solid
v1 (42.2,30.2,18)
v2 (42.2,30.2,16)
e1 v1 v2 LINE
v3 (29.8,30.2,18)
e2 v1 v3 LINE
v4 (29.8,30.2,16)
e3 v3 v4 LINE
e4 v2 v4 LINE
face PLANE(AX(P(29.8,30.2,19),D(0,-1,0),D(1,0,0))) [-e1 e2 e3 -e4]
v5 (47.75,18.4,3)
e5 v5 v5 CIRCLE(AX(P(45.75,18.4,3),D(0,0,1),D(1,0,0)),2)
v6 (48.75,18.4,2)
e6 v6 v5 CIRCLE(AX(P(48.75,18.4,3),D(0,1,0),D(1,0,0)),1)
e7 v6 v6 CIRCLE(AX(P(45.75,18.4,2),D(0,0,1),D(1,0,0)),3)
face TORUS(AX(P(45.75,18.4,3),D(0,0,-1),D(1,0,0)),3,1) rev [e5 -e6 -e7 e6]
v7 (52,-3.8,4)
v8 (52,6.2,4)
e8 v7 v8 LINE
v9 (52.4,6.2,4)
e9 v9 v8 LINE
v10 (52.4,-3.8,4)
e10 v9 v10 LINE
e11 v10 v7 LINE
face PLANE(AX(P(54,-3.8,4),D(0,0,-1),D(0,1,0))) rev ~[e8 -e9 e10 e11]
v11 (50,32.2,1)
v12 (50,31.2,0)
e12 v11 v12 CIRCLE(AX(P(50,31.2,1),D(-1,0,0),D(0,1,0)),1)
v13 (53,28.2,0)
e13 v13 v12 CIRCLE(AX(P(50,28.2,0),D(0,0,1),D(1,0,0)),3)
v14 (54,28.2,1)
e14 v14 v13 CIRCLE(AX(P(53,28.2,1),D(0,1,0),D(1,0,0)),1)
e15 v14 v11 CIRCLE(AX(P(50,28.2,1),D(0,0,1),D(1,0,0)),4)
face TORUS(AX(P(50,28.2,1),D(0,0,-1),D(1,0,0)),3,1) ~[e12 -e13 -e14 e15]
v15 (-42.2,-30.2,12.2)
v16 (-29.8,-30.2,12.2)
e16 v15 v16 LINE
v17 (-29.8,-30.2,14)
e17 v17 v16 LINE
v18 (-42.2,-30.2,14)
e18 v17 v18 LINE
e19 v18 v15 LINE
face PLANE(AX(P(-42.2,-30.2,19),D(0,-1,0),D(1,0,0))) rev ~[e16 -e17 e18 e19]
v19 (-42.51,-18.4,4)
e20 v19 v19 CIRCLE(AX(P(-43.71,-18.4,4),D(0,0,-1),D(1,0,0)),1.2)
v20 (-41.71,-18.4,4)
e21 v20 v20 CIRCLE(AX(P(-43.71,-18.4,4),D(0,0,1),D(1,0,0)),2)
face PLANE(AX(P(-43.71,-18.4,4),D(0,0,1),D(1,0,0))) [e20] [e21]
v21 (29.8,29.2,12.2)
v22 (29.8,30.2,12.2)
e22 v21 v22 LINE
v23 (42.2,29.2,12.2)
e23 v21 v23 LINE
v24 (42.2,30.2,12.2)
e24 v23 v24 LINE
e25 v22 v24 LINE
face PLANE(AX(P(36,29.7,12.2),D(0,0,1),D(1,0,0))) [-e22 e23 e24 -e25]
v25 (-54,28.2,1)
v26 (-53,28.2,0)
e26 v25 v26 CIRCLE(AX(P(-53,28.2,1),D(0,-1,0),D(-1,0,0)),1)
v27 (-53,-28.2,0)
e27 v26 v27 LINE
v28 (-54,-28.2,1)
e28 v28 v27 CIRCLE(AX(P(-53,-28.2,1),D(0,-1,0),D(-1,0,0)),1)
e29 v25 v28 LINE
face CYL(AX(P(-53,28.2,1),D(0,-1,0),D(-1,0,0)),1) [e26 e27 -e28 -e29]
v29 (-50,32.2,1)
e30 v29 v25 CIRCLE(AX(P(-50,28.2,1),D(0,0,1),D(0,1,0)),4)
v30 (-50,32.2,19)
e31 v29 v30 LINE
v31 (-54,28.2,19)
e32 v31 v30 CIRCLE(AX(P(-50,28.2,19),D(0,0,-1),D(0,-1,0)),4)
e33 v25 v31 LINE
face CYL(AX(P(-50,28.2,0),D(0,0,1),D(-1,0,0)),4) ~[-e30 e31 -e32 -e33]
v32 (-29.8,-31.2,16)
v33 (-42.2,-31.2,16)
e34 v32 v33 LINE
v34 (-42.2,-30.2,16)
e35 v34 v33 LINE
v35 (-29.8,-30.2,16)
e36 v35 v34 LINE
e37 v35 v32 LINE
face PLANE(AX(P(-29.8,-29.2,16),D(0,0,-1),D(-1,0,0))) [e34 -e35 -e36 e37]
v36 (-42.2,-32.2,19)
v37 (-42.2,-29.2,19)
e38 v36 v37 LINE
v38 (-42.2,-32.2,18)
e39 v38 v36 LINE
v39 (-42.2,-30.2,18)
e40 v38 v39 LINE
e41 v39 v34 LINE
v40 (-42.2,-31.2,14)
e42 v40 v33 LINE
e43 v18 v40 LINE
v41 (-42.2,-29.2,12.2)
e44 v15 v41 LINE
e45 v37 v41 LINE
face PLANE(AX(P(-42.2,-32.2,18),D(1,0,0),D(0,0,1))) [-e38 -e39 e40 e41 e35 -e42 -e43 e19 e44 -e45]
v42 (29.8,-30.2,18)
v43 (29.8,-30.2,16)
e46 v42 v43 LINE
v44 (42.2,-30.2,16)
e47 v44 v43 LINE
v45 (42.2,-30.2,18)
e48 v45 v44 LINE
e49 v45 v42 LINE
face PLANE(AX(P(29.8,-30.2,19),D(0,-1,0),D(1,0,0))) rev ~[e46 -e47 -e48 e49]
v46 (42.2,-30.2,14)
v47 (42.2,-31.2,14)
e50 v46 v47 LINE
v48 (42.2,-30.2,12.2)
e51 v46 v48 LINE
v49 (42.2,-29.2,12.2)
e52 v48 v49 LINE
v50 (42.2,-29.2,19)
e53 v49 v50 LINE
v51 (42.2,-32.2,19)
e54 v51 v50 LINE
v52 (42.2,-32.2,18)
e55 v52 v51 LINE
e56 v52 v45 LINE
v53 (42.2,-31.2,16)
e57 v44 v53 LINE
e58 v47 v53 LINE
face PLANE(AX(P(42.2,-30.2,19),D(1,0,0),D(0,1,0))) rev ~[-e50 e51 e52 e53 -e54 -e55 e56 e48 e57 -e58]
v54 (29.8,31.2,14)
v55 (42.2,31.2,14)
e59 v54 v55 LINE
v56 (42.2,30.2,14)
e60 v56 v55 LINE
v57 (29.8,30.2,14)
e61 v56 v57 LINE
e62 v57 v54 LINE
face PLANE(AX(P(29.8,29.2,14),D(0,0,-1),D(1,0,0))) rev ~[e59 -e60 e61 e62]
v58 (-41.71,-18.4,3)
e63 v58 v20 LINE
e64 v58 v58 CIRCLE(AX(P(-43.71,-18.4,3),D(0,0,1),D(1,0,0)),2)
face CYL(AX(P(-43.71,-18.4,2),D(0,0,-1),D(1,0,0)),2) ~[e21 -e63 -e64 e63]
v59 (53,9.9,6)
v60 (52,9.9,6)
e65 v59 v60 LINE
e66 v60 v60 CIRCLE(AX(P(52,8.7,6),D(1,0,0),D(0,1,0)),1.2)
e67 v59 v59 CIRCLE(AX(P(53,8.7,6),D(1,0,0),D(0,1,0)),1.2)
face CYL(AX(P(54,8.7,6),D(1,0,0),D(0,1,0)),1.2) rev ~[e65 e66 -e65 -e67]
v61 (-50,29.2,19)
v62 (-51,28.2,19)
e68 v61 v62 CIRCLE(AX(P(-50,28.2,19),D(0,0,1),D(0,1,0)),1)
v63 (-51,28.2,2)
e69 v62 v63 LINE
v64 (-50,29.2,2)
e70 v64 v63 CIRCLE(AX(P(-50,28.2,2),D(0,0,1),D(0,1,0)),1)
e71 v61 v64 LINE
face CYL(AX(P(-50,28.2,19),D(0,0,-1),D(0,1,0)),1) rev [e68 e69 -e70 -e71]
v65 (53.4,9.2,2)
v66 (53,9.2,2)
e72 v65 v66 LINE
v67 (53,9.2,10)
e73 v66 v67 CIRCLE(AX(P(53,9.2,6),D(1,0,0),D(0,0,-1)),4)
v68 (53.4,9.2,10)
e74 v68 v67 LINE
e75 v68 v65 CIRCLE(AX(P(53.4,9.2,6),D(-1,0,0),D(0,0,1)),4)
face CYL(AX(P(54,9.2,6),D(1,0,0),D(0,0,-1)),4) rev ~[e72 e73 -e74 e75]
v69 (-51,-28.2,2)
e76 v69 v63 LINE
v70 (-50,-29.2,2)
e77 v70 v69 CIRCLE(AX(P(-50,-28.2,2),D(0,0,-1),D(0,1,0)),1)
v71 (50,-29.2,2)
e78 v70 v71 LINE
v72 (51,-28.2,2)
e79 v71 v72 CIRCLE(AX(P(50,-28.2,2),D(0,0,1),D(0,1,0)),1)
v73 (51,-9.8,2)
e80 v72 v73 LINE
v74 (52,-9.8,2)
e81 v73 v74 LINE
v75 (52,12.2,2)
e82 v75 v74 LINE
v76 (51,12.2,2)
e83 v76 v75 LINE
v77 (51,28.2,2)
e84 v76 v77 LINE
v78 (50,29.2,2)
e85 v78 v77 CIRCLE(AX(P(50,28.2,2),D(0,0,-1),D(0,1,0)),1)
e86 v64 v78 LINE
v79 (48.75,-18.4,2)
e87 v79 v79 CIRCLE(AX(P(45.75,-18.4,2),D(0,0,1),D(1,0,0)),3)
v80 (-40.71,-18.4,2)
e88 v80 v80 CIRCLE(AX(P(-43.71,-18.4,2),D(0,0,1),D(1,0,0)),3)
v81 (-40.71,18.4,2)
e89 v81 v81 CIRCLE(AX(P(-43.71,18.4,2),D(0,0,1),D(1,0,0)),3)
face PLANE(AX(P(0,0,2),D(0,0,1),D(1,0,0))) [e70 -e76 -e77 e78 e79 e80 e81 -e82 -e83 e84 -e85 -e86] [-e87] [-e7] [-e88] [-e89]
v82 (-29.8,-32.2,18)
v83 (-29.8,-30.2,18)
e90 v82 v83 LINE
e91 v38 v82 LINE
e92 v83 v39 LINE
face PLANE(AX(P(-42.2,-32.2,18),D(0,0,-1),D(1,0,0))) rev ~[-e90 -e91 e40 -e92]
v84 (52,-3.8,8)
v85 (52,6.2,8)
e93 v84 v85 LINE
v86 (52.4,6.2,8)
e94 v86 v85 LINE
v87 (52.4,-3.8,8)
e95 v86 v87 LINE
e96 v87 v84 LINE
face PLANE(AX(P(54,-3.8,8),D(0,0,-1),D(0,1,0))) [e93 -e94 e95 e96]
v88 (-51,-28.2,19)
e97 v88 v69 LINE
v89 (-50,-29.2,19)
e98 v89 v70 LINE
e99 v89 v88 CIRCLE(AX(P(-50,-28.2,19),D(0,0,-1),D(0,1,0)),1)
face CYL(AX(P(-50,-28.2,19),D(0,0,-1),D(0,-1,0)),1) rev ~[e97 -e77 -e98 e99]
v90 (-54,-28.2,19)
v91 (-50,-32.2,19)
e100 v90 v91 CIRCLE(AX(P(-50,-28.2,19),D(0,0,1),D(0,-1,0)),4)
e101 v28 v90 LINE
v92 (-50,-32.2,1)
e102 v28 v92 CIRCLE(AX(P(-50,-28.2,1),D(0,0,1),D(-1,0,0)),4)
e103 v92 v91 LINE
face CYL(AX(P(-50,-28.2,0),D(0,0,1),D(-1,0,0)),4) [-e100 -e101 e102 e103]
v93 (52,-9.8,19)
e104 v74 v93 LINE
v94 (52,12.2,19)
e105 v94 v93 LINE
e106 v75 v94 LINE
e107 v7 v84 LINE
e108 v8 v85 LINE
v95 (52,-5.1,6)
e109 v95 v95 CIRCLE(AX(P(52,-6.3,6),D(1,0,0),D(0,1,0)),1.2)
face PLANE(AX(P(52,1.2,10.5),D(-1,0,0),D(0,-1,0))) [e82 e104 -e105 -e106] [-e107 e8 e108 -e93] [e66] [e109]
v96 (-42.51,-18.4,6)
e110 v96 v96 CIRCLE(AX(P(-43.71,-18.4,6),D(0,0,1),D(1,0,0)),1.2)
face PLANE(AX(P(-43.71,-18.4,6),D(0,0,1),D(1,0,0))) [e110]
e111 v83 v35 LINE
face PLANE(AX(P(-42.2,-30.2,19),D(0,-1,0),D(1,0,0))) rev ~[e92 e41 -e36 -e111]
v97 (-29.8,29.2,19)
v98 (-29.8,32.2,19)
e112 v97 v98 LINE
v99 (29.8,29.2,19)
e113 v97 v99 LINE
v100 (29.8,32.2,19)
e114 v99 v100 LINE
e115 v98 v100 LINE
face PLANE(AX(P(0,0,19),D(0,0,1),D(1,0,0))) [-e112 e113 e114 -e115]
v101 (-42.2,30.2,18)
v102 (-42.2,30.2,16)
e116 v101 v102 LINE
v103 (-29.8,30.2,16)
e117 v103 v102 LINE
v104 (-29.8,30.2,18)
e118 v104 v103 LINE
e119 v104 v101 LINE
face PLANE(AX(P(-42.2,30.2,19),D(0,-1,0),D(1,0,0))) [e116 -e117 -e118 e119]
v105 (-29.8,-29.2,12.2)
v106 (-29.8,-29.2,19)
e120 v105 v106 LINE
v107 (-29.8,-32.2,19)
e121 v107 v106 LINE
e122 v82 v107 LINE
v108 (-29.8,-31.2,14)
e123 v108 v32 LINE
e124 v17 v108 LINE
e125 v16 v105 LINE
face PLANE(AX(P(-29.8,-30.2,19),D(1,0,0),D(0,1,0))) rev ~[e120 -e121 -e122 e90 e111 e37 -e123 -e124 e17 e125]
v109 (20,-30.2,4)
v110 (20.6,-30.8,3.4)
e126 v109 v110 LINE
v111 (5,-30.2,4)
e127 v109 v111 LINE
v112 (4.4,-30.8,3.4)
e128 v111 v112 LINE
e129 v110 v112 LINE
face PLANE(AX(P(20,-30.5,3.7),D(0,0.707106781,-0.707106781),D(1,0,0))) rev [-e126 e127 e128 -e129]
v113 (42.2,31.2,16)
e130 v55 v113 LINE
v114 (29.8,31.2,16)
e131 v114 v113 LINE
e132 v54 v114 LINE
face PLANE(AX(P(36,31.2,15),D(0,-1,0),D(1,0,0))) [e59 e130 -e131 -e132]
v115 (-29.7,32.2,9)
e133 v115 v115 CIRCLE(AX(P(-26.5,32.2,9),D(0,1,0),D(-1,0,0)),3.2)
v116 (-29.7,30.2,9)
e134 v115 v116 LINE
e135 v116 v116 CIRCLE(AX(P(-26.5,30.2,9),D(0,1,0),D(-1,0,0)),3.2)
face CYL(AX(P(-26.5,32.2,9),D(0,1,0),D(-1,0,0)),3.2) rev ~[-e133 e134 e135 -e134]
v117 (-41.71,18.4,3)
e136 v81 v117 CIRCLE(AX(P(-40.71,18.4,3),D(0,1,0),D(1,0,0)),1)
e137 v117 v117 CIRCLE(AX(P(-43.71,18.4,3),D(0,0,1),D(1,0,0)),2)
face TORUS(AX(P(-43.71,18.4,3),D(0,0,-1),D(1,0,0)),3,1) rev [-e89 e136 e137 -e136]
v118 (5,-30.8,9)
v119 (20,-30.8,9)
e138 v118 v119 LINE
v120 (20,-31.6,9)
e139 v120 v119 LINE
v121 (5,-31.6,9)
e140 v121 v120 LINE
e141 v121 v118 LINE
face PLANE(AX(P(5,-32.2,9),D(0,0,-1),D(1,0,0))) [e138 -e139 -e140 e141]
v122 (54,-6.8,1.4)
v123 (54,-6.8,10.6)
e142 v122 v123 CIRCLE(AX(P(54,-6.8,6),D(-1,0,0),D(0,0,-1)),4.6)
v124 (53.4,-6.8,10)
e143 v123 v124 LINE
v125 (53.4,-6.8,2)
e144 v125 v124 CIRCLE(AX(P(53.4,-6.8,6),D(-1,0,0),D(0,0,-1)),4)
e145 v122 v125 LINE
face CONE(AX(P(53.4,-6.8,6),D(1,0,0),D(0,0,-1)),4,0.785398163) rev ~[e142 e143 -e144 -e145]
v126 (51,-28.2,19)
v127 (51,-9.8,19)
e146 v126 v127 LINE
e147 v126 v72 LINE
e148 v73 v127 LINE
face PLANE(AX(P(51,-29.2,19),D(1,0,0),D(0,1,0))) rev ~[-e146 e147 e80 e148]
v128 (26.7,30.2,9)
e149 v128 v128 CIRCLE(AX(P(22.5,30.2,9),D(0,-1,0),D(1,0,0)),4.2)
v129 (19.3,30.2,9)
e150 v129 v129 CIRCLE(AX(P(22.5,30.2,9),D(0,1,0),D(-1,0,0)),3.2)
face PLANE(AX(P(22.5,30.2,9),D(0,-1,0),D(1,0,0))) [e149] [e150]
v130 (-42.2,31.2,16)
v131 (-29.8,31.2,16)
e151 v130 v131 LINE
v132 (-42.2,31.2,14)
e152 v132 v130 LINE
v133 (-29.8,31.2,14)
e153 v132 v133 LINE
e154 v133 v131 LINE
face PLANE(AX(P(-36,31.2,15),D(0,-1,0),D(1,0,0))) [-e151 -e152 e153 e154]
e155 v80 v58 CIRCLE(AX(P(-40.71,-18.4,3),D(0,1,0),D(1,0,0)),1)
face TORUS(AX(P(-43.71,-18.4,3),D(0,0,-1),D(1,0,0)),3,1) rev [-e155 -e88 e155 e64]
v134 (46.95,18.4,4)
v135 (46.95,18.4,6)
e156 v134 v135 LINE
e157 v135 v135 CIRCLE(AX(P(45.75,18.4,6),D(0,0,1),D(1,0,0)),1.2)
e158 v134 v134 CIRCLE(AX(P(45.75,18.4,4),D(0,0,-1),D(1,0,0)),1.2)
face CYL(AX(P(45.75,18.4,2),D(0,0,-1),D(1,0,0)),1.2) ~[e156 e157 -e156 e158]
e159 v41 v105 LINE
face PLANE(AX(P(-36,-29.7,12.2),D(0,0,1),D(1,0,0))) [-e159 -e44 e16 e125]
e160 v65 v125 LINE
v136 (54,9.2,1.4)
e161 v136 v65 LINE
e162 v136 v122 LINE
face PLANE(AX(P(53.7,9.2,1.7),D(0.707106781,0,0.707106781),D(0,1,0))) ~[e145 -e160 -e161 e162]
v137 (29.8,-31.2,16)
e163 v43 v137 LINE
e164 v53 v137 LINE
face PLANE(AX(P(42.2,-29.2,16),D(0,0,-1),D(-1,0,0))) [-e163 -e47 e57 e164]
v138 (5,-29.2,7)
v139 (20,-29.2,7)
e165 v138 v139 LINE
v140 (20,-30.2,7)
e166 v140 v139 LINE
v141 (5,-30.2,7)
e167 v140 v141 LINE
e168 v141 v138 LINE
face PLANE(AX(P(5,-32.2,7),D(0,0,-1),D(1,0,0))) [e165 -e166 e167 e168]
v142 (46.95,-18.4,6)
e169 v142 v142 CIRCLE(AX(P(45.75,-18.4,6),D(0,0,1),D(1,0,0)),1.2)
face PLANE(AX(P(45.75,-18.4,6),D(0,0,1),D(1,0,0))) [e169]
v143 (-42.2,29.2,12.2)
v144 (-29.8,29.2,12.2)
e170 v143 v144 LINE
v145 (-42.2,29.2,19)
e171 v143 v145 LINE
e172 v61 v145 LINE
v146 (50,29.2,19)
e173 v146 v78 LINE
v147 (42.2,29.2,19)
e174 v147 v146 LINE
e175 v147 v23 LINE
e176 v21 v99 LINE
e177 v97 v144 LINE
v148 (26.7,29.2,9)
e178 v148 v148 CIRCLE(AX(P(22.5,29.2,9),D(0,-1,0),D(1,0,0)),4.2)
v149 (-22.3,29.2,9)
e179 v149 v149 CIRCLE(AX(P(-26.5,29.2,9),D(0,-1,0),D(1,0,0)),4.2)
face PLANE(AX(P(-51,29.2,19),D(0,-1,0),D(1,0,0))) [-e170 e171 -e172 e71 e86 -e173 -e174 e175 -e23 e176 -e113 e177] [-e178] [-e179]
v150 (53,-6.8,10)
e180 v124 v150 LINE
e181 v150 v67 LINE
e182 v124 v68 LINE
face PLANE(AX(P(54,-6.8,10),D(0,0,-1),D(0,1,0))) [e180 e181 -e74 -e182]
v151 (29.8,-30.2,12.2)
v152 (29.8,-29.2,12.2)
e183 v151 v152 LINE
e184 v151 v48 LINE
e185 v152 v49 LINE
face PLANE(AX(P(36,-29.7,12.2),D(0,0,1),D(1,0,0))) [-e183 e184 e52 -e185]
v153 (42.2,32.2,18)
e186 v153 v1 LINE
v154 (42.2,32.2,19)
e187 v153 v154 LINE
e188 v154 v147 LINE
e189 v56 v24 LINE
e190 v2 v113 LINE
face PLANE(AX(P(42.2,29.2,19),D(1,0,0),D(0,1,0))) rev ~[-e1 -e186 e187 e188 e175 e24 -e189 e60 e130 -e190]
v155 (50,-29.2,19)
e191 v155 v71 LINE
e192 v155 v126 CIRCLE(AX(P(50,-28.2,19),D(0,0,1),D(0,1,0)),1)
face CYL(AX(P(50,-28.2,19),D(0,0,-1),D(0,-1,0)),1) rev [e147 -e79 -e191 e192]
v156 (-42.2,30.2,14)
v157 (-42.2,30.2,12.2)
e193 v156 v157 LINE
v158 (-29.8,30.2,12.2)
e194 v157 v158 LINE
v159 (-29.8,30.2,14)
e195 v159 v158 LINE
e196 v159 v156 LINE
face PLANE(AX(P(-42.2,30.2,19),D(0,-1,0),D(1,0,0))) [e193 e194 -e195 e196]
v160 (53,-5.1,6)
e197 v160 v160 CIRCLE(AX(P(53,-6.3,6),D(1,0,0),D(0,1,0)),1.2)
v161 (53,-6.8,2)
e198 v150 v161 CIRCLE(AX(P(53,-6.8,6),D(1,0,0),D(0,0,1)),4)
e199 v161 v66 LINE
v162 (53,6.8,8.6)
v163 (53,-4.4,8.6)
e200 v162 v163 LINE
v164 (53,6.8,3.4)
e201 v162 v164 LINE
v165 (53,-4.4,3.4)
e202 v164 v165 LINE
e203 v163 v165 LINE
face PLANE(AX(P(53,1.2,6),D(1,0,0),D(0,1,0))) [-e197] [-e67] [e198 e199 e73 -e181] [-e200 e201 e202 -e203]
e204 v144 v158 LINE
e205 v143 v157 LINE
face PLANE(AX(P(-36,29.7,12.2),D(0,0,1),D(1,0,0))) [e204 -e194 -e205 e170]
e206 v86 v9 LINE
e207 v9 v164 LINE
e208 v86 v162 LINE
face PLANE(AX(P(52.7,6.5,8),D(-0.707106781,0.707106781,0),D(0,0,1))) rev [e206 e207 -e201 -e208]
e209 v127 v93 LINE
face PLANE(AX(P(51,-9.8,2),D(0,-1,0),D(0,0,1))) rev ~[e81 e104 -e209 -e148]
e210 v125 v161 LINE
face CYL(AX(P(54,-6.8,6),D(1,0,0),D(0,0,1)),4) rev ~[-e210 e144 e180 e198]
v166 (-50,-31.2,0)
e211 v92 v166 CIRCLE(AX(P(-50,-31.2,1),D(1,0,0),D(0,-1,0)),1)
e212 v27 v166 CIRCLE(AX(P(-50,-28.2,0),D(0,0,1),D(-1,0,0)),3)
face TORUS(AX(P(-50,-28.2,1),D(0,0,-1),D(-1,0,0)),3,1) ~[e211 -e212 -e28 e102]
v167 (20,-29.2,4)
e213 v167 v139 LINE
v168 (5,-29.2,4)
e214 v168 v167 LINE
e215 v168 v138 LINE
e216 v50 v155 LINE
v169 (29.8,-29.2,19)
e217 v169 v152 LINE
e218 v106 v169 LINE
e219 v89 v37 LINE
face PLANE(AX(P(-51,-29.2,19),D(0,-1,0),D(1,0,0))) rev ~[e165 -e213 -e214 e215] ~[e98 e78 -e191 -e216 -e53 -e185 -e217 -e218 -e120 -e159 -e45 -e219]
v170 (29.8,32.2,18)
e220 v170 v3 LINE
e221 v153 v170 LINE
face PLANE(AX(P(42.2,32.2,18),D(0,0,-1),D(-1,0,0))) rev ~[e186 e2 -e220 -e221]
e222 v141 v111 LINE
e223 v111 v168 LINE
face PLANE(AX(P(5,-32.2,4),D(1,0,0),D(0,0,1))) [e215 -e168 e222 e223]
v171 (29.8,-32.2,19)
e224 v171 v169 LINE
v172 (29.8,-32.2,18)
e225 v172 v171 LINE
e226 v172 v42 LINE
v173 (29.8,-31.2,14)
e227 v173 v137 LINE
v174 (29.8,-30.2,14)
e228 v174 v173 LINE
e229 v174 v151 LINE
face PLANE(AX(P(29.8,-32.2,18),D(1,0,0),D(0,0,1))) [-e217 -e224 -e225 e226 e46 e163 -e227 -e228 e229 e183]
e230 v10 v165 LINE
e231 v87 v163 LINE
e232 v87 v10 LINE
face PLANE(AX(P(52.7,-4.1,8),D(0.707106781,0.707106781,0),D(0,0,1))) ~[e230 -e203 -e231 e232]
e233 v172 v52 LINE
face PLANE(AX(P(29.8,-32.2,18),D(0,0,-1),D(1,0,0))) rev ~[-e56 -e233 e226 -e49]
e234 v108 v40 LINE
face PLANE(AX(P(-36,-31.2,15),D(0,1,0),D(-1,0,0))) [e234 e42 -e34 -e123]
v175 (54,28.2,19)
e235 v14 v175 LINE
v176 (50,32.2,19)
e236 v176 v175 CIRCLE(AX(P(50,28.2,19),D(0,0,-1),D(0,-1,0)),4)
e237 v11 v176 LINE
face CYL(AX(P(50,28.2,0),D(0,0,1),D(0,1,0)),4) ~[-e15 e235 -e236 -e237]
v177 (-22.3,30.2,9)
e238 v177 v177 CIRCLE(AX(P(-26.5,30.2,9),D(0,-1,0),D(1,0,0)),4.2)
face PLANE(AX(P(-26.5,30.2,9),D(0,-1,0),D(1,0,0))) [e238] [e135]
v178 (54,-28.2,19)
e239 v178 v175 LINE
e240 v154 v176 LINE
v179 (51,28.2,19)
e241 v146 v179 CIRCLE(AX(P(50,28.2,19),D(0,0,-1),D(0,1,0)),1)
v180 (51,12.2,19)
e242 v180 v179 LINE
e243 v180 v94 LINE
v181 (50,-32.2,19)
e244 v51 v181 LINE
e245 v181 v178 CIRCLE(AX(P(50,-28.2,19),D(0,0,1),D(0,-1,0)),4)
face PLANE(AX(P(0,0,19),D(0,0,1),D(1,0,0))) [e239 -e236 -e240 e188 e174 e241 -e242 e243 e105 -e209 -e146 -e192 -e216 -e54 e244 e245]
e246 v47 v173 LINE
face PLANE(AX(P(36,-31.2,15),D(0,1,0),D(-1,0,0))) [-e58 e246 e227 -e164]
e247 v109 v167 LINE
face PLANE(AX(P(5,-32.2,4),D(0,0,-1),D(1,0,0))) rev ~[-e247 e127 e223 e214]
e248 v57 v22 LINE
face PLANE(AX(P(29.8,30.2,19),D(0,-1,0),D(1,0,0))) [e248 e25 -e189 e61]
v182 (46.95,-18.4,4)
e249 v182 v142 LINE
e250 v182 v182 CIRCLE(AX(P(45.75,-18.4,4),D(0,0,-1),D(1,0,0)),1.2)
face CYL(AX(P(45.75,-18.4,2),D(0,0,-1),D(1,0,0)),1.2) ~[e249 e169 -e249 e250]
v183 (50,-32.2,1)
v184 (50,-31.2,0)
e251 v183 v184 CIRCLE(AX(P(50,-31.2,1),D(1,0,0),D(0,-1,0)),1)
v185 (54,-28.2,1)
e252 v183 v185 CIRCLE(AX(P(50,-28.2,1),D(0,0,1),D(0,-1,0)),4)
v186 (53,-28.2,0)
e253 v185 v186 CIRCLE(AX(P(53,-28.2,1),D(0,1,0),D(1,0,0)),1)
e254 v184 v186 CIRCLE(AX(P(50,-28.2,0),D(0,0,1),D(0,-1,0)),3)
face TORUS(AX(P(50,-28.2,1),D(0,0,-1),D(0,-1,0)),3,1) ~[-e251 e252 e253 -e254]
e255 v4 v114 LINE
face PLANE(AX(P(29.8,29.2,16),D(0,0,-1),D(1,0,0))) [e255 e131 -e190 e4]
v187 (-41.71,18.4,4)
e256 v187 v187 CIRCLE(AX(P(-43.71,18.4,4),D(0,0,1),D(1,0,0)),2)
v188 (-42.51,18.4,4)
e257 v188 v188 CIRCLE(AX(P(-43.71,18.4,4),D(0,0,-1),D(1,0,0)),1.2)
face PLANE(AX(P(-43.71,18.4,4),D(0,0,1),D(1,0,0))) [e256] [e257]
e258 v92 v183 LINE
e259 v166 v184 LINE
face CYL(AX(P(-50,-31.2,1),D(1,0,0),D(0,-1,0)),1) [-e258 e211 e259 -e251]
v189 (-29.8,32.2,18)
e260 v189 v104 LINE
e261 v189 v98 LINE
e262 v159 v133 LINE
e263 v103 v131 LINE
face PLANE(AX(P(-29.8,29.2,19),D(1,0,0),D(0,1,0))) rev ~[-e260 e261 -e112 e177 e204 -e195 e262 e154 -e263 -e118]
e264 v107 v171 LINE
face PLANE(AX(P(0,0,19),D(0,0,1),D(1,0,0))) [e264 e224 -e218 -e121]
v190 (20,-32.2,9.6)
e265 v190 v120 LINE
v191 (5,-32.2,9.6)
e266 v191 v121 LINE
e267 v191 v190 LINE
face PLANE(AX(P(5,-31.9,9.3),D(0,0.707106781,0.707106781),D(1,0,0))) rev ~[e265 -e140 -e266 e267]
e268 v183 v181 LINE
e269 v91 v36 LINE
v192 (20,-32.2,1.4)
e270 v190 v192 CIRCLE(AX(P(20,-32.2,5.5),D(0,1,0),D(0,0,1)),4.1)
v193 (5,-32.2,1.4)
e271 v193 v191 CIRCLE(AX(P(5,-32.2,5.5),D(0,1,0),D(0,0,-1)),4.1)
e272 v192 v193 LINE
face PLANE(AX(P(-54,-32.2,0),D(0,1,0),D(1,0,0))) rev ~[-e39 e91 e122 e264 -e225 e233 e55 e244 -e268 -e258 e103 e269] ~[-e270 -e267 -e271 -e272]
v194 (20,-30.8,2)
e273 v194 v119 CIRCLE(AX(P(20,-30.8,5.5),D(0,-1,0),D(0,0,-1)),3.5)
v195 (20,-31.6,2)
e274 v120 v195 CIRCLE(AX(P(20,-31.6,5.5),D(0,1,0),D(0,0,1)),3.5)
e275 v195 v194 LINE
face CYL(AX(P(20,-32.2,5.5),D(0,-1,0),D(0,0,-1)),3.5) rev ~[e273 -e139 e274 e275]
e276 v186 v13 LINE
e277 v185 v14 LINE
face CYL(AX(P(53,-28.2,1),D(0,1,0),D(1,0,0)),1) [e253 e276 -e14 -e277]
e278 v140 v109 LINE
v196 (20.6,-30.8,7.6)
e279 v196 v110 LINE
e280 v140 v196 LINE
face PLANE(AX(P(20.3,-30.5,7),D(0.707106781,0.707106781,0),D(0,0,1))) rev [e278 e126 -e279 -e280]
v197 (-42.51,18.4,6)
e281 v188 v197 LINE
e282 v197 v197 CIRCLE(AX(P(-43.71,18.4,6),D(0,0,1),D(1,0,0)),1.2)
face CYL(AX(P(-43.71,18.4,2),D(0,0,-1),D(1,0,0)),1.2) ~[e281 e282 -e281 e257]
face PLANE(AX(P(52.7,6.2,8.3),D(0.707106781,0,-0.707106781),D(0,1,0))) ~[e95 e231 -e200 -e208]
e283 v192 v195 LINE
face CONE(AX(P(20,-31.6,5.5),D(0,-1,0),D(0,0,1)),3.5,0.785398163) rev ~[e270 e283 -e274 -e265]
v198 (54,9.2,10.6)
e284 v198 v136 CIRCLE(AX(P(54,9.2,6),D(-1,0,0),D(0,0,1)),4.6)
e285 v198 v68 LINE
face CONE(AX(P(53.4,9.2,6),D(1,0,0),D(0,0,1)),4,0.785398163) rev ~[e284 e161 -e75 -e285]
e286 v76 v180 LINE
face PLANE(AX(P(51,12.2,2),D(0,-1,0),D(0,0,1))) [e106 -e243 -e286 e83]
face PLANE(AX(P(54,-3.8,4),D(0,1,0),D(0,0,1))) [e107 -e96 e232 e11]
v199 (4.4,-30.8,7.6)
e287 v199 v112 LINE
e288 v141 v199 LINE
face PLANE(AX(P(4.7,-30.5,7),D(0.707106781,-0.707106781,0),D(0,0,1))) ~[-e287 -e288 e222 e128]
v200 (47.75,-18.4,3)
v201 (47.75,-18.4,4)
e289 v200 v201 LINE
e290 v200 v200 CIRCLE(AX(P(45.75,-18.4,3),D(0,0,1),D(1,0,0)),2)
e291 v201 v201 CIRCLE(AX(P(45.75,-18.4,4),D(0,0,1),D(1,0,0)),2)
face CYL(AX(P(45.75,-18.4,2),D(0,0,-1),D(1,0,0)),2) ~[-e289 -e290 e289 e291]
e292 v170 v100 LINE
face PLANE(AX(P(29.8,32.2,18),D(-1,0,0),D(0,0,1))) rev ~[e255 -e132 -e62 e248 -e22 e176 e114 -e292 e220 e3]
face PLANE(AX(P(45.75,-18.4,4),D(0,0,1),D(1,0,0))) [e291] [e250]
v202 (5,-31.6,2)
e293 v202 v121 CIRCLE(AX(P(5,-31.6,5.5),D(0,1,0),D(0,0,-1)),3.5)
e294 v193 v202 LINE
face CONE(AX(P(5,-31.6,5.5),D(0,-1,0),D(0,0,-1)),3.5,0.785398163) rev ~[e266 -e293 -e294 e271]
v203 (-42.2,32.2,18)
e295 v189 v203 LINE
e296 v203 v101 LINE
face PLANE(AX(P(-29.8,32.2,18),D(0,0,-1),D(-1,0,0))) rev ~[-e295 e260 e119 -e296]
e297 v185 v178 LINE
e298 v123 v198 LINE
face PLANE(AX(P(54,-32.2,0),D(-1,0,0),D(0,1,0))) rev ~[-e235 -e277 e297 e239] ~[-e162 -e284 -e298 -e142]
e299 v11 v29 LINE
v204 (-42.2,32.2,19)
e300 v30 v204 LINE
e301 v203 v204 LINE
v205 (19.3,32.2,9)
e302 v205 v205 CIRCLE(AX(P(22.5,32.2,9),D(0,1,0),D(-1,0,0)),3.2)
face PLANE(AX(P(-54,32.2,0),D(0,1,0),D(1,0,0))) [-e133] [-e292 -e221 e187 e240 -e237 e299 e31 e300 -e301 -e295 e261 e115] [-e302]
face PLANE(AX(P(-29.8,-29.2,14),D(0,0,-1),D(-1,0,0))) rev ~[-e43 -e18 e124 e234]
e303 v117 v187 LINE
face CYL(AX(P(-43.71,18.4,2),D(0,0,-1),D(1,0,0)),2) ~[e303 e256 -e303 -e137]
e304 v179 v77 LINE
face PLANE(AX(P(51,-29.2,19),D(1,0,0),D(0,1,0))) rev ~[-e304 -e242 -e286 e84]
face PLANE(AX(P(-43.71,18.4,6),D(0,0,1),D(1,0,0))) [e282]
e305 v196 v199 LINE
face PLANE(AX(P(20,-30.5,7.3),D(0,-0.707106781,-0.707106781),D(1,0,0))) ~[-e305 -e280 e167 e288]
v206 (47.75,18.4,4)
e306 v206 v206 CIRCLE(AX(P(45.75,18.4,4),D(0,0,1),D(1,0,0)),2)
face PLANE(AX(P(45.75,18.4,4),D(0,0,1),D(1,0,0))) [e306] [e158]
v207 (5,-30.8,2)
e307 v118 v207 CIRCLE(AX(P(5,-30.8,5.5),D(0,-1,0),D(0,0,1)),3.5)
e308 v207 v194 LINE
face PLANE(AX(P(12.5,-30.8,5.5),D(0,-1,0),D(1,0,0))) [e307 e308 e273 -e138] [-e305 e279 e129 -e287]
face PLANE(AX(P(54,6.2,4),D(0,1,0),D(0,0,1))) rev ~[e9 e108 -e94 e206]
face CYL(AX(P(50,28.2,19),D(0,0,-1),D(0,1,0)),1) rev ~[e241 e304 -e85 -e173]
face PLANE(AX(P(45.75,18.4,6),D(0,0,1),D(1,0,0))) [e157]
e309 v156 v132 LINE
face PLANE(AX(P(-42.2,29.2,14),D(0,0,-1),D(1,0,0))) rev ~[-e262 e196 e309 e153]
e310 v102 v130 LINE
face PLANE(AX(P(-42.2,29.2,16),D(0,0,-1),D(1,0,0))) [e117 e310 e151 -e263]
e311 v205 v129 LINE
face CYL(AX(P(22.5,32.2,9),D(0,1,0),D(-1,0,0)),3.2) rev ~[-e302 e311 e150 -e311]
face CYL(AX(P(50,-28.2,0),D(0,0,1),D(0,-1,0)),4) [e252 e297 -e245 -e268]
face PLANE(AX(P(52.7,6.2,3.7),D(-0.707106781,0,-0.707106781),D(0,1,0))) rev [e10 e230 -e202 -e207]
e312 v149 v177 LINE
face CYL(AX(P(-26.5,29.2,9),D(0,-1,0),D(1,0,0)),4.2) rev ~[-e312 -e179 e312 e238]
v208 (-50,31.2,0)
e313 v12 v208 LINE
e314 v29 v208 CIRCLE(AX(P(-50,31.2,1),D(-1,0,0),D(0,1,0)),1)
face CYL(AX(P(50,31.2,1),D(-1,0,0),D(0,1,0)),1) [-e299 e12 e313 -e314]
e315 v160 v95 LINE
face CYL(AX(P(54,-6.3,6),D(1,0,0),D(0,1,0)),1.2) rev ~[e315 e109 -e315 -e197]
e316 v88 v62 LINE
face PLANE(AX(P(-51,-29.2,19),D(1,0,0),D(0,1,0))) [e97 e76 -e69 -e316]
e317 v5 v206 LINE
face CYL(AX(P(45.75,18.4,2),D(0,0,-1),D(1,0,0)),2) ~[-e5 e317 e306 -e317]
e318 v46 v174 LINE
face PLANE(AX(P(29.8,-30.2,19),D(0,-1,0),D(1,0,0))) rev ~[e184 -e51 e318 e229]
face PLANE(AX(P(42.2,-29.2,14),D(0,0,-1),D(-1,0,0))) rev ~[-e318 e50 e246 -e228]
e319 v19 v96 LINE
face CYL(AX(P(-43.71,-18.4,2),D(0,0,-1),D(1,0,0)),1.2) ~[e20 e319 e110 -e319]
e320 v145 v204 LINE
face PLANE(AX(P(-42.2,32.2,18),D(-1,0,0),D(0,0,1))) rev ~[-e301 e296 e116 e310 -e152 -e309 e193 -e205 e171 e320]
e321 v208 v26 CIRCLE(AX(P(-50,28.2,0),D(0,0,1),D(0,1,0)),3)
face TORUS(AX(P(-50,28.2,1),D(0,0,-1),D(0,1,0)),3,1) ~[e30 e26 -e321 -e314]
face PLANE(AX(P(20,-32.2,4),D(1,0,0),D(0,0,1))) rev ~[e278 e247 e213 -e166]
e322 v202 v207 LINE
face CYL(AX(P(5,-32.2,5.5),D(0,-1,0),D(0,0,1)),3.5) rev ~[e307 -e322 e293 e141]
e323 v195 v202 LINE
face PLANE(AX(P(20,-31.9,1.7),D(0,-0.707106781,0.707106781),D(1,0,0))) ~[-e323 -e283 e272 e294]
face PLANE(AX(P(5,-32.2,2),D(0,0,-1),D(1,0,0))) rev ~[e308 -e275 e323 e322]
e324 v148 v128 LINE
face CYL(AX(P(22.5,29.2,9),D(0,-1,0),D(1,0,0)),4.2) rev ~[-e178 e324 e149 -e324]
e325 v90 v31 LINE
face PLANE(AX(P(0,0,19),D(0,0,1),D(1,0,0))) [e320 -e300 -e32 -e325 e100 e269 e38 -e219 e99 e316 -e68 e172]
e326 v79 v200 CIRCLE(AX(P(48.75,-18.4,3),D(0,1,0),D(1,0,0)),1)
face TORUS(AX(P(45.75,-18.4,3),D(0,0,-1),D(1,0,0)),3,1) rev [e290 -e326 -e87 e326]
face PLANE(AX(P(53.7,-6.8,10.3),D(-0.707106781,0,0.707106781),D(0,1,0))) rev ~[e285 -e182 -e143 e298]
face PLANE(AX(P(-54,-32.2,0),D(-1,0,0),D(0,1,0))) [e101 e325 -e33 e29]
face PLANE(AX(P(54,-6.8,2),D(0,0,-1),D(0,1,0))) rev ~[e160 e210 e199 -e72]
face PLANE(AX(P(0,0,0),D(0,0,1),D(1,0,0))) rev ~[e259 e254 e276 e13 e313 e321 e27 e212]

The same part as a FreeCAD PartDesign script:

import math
import FreeCAD as App
import Part
import Sketcher

V = App.Vector


def edges_at(feature, points):
    """Names of the edges that pass closest to the given points."""
    edges = feature.Shape.Edges
    near = lambda p: min(range(len(edges)), key=lambda i: edges[i].distToShape(Part.Vertex(*p))[0])
    return sorted({f"Edge{near(p) + 1}" for p in points})


def add_polygon(sketch, points):
    """Adds a closed chain of lines whose ends are joined by coincident constraints."""
    first, n = sketch.GeometryCount, len(points)
    for a, b in zip(points, points[1:] + points[:1]):
        sketch.addGeometry(Part.LineSegment(App.Vector(*a, 0), App.Vector(*b, 0)), False)
    for i in range(n):
        sketch.addConstraint(Sketcher.Constraint("Coincident", first + i, 2, first + (i + 1) % n, 1))

doc = App.newDocument("Part")
body = doc.addObject("PartDesign::Body", "Body")

sketch1 = body.newObject("Sketcher::SketchObject", "Sketch")
sketch1.AttachmentSupport = (doc.getObject("XY_Plane"), [""])
sketch1.MapMode = "FlatFace"
add_polygon(sketch1, [(-54, 32), (-54, -32), (54, -32), (54, 32)])
sketch1.addConstraint(Sketcher.Constraint("Vertical", 0))
sketch1.addConstraint(Sketcher.Constraint("Horizontal", 1))
sketch1.addConstraint(Sketcher.Constraint("Vertical", 2))
sketch1.addConstraint(Sketcher.Constraint("Horizontal", 3))
sketch1.addConstraint(Sketcher.Constraint("Symmetric", 0, 2, 2, 2, -1, 1))
sketch1.addConstraint(Sketcher.Constraint("DistanceX", 1, 1, 1, 2, 108.0))
sketch1.addConstraint(Sketcher.Constraint("DistanceY", 0, 2, 0, 1, 64.4))
pad1 = body.newObject("PartDesign::Pad", "Pad")
pad1.Profile = sketch1
pad1.Length = 19

sketch2 = body.newObject("Sketcher::SketchObject", "Sketch001")
sketch2.AttachmentSupport = (doc.getObject("XY_Plane"), [""])
sketch2.MapMode = "FlatFace"
sketch2.AttachmentOffset = App.Placement(V(0, 0, 19), App.Rotation())
add_polygon(sketch2, [(-51, 29), (-51, -29), (51, -29), (51, 29)])
sketch2.addConstraint(Sketcher.Constraint("Vertical", 0))
sketch2.addConstraint(Sketcher.Constraint("Horizontal", 1))
sketch2.addConstraint(Sketcher.Constraint("Vertical", 2))
sketch2.addConstraint(Sketcher.Constraint("Horizontal", 3))
sketch2.addConstraint(Sketcher.Constraint("Symmetric", 0, 2, 2, 2, -1, 1))
sketch2.addConstraint(Sketcher.Constraint("DistanceX", 1, 1, 1, 2, 102.0))
sketch2.addConstraint(Sketcher.Constraint("DistanceY", 0, 2, 0, 1, 58.4))
pocket1 = body.newObject("PartDesign::Pocket", "Pocket")
pocket1.Profile = sketch2
pocket1.Length = 17

sketch3 = body.newObject("Sketcher::SketchObject", "Sketch002")
sketch3.AttachmentSupport = (doc.getObject("XY_Plane"), [""])
sketch3.MapMode = "FlatFace"
sketch3.AttachmentOffset = App.Placement(V(0, 0, 2), App.Rotation())
sketch3.addGeometry(Part.Circle(V(-43.7, 18.4, 0), V(0, 0, 1), 2), False)
sketch3.addGeometry(Part.Circle(V(45.8, 18.4, 0), V(0, 0, 1), 2), False)
sketch3.addGeometry(Part.Circle(V(45.8, -18.4, 0), V(0, 0, 1), 2), False)
sketch3.addGeometry(Part.Circle(V(-43.7, -18.4, 0), V(0, 0, 1), 2), False)
sketch3.addConstraint(Sketcher.Constraint("Equal", 0, 1))
sketch3.addConstraint(Sketcher.Constraint("Equal", 1, 2))
sketch3.addConstraint(Sketcher.Constraint("Equal", 2, 3))
sketch3.addConstraint(Sketcher.Constraint("Symmetric", 1, 3, 2, 3, -1))
sketch3.addConstraint(Sketcher.Constraint("Symmetric", 0, 3, 3, 3, -1))
sketch3.addConstraint(Sketcher.Constraint("Horizontal", 0, 3, 1, 3))
sketch3.addConstraint(Sketcher.Constraint("Diameter", 0, 4.0))
sketch3.addConstraint(Sketcher.Constraint("DistanceY", -1, 1, 0, 3, 18.4))
sketch3.addConstraint(Sketcher.Constraint("DistanceX", 0, 3, -1, 1, 43.71))
sketch3.addConstraint(Sketcher.Constraint("DistanceX", -1, 1, 1, 3, 45.75))
pad2 = body.newObject("PartDesign::Pad", "Pad001")
pad2.Profile = sketch3
pad2.Length = 2

sketch4 = body.newObject("Sketcher::SketchObject", "Sketch003")
sketch4.AttachmentSupport = (doc.getObject("XY_Plane"), [""])
sketch4.MapMode = "FlatFace"
sketch4.AttachmentOffset = App.Placement(V(0, 0, 2), App.Rotation())
sketch4.addGeometry(Part.Circle(V(-43.7, 18.4, 0), V(0, 0, 1), 1.2), False)
sketch4.addGeometry(Part.Circle(V(45.8, 18.4, 0), V(0, 0, 1), 1.2), False)
sketch4.addGeometry(Part.Circle(V(45.8, -18.4, 0), V(0, 0, 1), 1.2), False)
sketch4.addGeometry(Part.Circle(V(-43.7, -18.4, 0), V(0, 0, 1), 1.2), False)
sketch4.addConstraint(Sketcher.Constraint("Equal", 0, 1))
sketch4.addConstraint(Sketcher.Constraint("Equal", 1, 2))
sketch4.addConstraint(Sketcher.Constraint("Equal", 2, 3))
sketch4.addConstraint(Sketcher.Constraint("Symmetric", 1, 3, 2, 3, -1))
sketch4.addConstraint(Sketcher.Constraint("Symmetric", 0, 3, 3, 3, -1))
sketch4.addConstraint(Sketcher.Constraint("Horizontal", 0, 3, 1, 3))
sketch4.addConstraint(Sketcher.Constraint("Diameter", 0, 2.4))
sketch4.addConstraint(Sketcher.Constraint("DistanceY", -1, 1, 0, 3, 18.4))
sketch4.addConstraint(Sketcher.Constraint("DistanceX", 0, 3, -1, 1, 43.71))
sketch4.addConstraint(Sketcher.Constraint("DistanceX", -1, 1, 1, 3, 45.75))
pad3 = body.newObject("PartDesign::Pad", "Pad002")
pad3.Profile = sketch4
pad3.Length = 4

sketch5 = body.newObject("Sketcher::SketchObject", "Sketch004")
sketch5.AttachmentSupport = (doc.getObject("XZ_Plane"), [""])
sketch5.MapMode = "FlatFace"
sketch5.AttachmentOffset = App.Placement(V(0, 0, -32.2), App.Rotation())
sketch5.addGeometry(Part.Circle(V(22.5, 9, 0), V(0, 0, 1), 3.2), False)
sketch5.addGeometry(Part.Circle(V(-26.5, 9, 0), V(0, 0, 1), 3.2), False)
add_polygon(sketch5, [(42.2, 19), (42.2, 18), (29.8, 18), (29.8, 19)])
add_polygon(sketch5, [(-29.8, 19), (-29.8, 18), (-42.2, 18), (-42.2, 19)])
sketch5.addConstraint(Sketcher.Constraint("Vertical", 2))
sketch5.addConstraint(Sketcher.Constraint("Horizontal", 3))
sketch5.addConstraint(Sketcher.Constraint("Vertical", 4))
sketch5.addConstraint(Sketcher.Constraint("Horizontal", 5))
sketch5.addConstraint(Sketcher.Constraint("Vertical", 6))
sketch5.addConstraint(Sketcher.Constraint("Horizontal", 7))
sketch5.addConstraint(Sketcher.Constraint("Vertical", 8))
sketch5.addConstraint(Sketcher.Constraint("Horizontal", 9))
sketch5.addConstraint(Sketcher.Constraint("Equal", 0, 1))
sketch5.addConstraint(Sketcher.Constraint("Symmetric", 3, 2, 6, 2, -2))
sketch5.addConstraint(Sketcher.Constraint("Symmetric", 5, 2, 8, 2, -2))
sketch5.addConstraint(Sketcher.Constraint("Horizontal", 0, 3, 1, 3))
sketch5.addConstraint(Sketcher.Constraint("Diameter", 0, 6.4))
sketch5.addConstraint(Sketcher.Constraint("DistanceY", 2, 2, 2, 1, 1.0))
sketch5.addConstraint(Sketcher.Constraint("DistanceX", 3, 2, 3, 1, 12.4))
sketch5.addConstraint(Sketcher.Constraint("DistanceY", -1, 1, 0, 3, 9.0))
sketch5.addConstraint(Sketcher.Constraint("DistanceY", -1, 1, 2, 2, 18.0))
sketch5.addConstraint(Sketcher.Constraint("DistanceX", 1, 3, 0, 3, 49.0))
sketch5.addConstraint(Sketcher.Constraint("DistanceX", 6, 2, 2, 2, 72.0))
sketch5.addConstraint(Sketcher.Constraint("DistanceX", -1, 1, 0, 3, 22.5))
pocket2 = body.newObject("PartDesign::Pocket", "Pocket001")
pocket2.Profile = sketch5
pocket2.Length = 3
pocket2.Reversed = True

sketch6 = body.newObject("Sketcher::SketchObject", "Sketch005")
sketch6.AttachmentSupport = (doc.getObject("XZ_Plane"), [""])
sketch6.MapMode = "FlatFace"
sketch6.AttachmentOffset = App.Placement(V(0, 0, 32.2), App.Rotation())
add_polygon(sketch6, [(-42.2, 19), (-42.2, 18), (-29.8, 18), (-29.8, 19)])
add_polygon(sketch6, [(29.8, 19), (29.8, 18), (42.2, 18), (42.2, 19)])
add_polygon(sketch6, [(5, 7), (5, 4), (20, 4), (20, 7)])
sketch6.addConstraint(Sketcher.Constraint("Vertical", 0))
sketch6.addConstraint(Sketcher.Constraint("Horizontal", 1))
sketch6.addConstraint(Sketcher.Constraint("Vertical", 2))
sketch6.addConstraint(Sketcher.Constraint("Horizontal", 3))
sketch6.addConstraint(Sketcher.Constraint("Vertical", 4))
sketch6.addConstraint(Sketcher.Constraint("Horizontal", 5))
sketch6.addConstraint(Sketcher.Constraint("Vertical", 6))
sketch6.addConstraint(Sketcher.Constraint("Horizontal", 7))
sketch6.addConstraint(Sketcher.Constraint("Vertical", 8))
sketch6.addConstraint(Sketcher.Constraint("Horizontal", 9))
sketch6.addConstraint(Sketcher.Constraint("Vertical", 10))
sketch6.addConstraint(Sketcher.Constraint("Horizontal", 11))
sketch6.addConstraint(Sketcher.Constraint("Symmetric", 1, 2, 4, 2, -2))
sketch6.addConstraint(Sketcher.Constraint("Symmetric", 3, 2, 6, 2, -2))
sketch6.addConstraint(Sketcher.Constraint("DistanceX", 9, 1, 9, 2, 15.0))
sketch6.addConstraint(Sketcher.Constraint("DistanceY", 0, 2, 0, 1, 1.0))
sketch6.addConstraint(Sketcher.Constraint("DistanceY", 8, 2, 8, 1, 3.0))
sketch6.addConstraint(Sketcher.Constraint("DistanceX", 1, 1, 1, 2, 12.4))
sketch6.addConstraint(Sketcher.Constraint("DistanceY", -1, 1, 0, 2, 18.0))
sketch6.addConstraint(Sketcher.Constraint("DistanceX", -1, 1, 8, 2, 5.0))
sketch6.addConstraint(Sketcher.Constraint("DistanceY", -1, 1, 8, 2, 4.0))
sketch6.addConstraint(Sketcher.Constraint("DistanceX", 0, 2, 4, 2, 72.0))
pocket3 = body.newObject("PartDesign::Pocket", "Pocket002")
pocket3.Profile = sketch6
pocket3.Length = 3

sketch7 = body.newObject("Sketcher::SketchObject", "Sketch006")
sketch7.AttachmentSupport = (doc.getObject("YZ_Plane"), [""])
sketch7.MapMode = "FlatFace"
sketch7.AttachmentOffset = App.Placement(V(0, 0, 54), App.Rotation())
sketch7.addGeometry(Part.Circle(V(-6.3, 6, 0), V(0, 0, 1), 1.2), False)
sketch7.addGeometry(Part.Circle(V(8.7, 6, 0), V(0, 0, 1), 1.2), False)
add_polygon(sketch7, [(-3.8, 8), (-3.8, 4), (6.2, 4), (6.2, 8)])
sketch7.addConstraint(Sketcher.Constraint("Vertical", 2))
sketch7.addConstraint(Sketcher.Constraint("Horizontal", 3))
sketch7.addConstraint(Sketcher.Constraint("Vertical", 4))
sketch7.addConstraint(Sketcher.Constraint("Horizontal", 5))
sketch7.addConstraint(Sketcher.Constraint("Equal", 0, 1))
sketch7.addConstraint(Sketcher.Constraint("Horizontal", 0, 3, 1, 3))
sketch7.addConstraint(Sketcher.Constraint("Diameter", 0, 2.4))
sketch7.addConstraint(Sketcher.Constraint("DistanceX", 3, 1, 3, 2, 10.0))
sketch7.addConstraint(Sketcher.Constraint("DistanceY", 2, 2, 2, 1, 4.0))
sketch7.addConstraint(Sketcher.Constraint("DistanceY", -1, 1, 0, 3, 6.0))
sketch7.addConstraint(Sketcher.Constraint("DistanceY", -1, 1, 2, 2, 4.0))
sketch7.addConstraint(Sketcher.Constraint("DistanceX", 0, 3, 1, 3, 15.0))
sketch7.addConstraint(Sketcher.Constraint("DistanceX", 0, 3, -1, 1, 6.3))
sketch7.addConstraint(Sketcher.Constraint("DistanceX", 2, 2, -1, 1, 3.8))
pocket4 = body.newObject("PartDesign::Pocket", "Pocket003")
pocket4.Profile = sketch7
pocket4.Length = 3

sketch8 = body.newObject("Sketcher::SketchObject", "Sketch007")
sketch8.AttachmentSupport = (doc.getObject("XZ_Plane"), [""])
sketch8.MapMode = "FlatFace"
sketch8.AttachmentOffset = App.Placement(V(0, 0, -29.2), App.Rotation())
add_polygon(sketch8, [(-42.2, 16), (-42.2, 14), (-29.8, 14), (-29.8, 16)])
add_polygon(sketch8, [(29.8, 16), (29.8, 14), (42.2, 14), (42.2, 16)])
sketch8.addConstraint(Sketcher.Constraint("Vertical", 0))
sketch8.addConstraint(Sketcher.Constraint("Horizontal", 1))
sketch8.addConstraint(Sketcher.Constraint("Vertical", 2))
sketch8.addConstraint(Sketcher.Constraint("Horizontal", 3))
sketch8.addConstraint(Sketcher.Constraint("Vertical", 4))
sketch8.addConstraint(Sketcher.Constraint("Horizontal", 5))
sketch8.addConstraint(Sketcher.Constraint("Vertical", 6))
sketch8.addConstraint(Sketcher.Constraint("Horizontal", 7))
sketch8.addConstraint(Sketcher.Constraint("Symmetric", 1, 2, 4, 2, -2))
sketch8.addConstraint(Sketcher.Constraint("Symmetric", 3, 2, 6, 2, -2))
sketch8.addConstraint(Sketcher.Constraint("DistanceY", 0, 2, 0, 1, 2.0))
sketch8.addConstraint(Sketcher.Constraint("DistanceX", 1, 1, 1, 2, 12.4))
sketch8.addConstraint(Sketcher.Constraint("DistanceY", -1, 1, 0, 2, 14.0))
sketch8.addConstraint(Sketcher.Constraint("DistanceX", 0, 2, 4, 2, 72.0))
pocket5 = body.newObject("PartDesign::Pocket", "Pocket004")
pocket5.Profile = sketch8
pocket5.Length = 2

sketch9 = body.newObject("Sketcher::SketchObject", "Sketch008")
sketch9.AttachmentSupport = (doc.getObject("XZ_Plane"), [""])
sketch9.MapMode = "FlatFace"
sketch9.AttachmentOffset = App.Placement(V(0, 0, 29.2), App.Rotation())
add_polygon(sketch9, [(42.2, 16), (42.2, 14), (29.8, 14), (29.8, 16)])
add_polygon(sketch9, [(-29.8, 16), (-29.8, 14), (-42.2, 14), (-42.2, 16)])
sketch9.addConstraint(Sketcher.Constraint("Vertical", 0))
sketch9.addConstraint(Sketcher.Constraint("Horizontal", 1))
sketch9.addConstraint(Sketcher.Constraint("Vertical", 2))
sketch9.addConstraint(Sketcher.Constraint("Horizontal", 3))
sketch9.addConstraint(Sketcher.Constraint("Vertical", 4))
sketch9.addConstraint(Sketcher.Constraint("Horizontal", 5))
sketch9.addConstraint(Sketcher.Constraint("Vertical", 6))
sketch9.addConstraint(Sketcher.Constraint("Horizontal", 7))
sketch9.addConstraint(Sketcher.Constraint("Symmetric", 1, 2, 4, 2, -2))
sketch9.addConstraint(Sketcher.Constraint("Symmetric", 3, 2, 6, 2, -2))
sketch9.addConstraint(Sketcher.Constraint("DistanceY", 0, 2, 0, 1, 2.0))
sketch9.addConstraint(Sketcher.Constraint("DistanceX", 1, 2, 1, 1, 12.4))
sketch9.addConstraint(Sketcher.Constraint("DistanceY", -1, 1, 0, 2, 14.0))
sketch9.addConstraint(Sketcher.Constraint("DistanceX", 4, 2, 0, 2, 72.0))
pocket6 = body.newObject("PartDesign::Pocket", "Pocket005")
pocket6.Profile = sketch9
pocket6.Length = 2
pocket6.Reversed = True

sketch10 = body.newObject("Sketcher::SketchObject", "Sketch009")
sketch10.AttachmentSupport = (doc.getObject("XY_Plane"), [""])
sketch10.MapMode = "FlatFace"
sketch10.AttachmentOffset = App.Placement(V(0, 0, 19), App.Rotation())
add_polygon(sketch10, [(-42.2, 30.2), (-42.2, 29.2), (-29.8, 29.2), (-29.8, 30.2)])
add_polygon(sketch10, [(29.8, 30.2), (29.8, 29.2), (42.2, 29.2), (42.2, 30.2)])
add_polygon(sketch10, [(29.8, -29.2), (29.8, -30.2), (42.2, -30.2), (42.2, -29.2)])
add_polygon(sketch10, [(-42.2, -29.2), (-42.2, -30.2), (-29.8, -30.2), (-29.8, -29.2)])
sketch10.addConstraint(Sketcher.Constraint("Vertical", 0))
sketch10.addConstraint(Sketcher.Constraint("Horizontal", 1))
sketch10.addConstraint(Sketcher.Constraint("Vertical", 2))
sketch10.addConstraint(Sketcher.Constraint("Horizontal", 3))
sketch10.addConstraint(Sketcher.Constraint("Vertical", 4))
sketch10.addConstraint(Sketcher.Constraint("Horizontal", 5))
sketch10.addConstraint(Sketcher.Constraint("Vertical", 6))
sketch10.addConstraint(Sketcher.Constraint("Horizontal", 7))
sketch10.addConstraint(Sketcher.Constraint("Vertical", 8))
sketch10.addConstraint(Sketcher.Constraint("Horizontal", 9))
sketch10.addConstraint(Sketcher.Constraint("Vertical", 10))
sketch10.addConstraint(Sketcher.Constraint("Horizontal", 11))
sketch10.addConstraint(Sketcher.Constraint("Vertical", 12))
sketch10.addConstraint(Sketcher.Constraint("Horizontal", 13))
sketch10.addConstraint(Sketcher.Constraint("Vertical", 14))
sketch10.addConstraint(Sketcher.Constraint("Horizontal", 15))
sketch10.addConstraint(Sketcher.Constraint("Symmetric", 2, 2, 8, 2, -1, 1))
sketch10.addConstraint(Sketcher.Constraint("Symmetric", 0, 2, 10, 2, -1, 1))
sketch10.addConstraint(Sketcher.Constraint("Symmetric", 6, 2, 12, 2, -1, 1))
sketch10.addConstraint(Sketcher.Constraint("Symmetric", 4, 2, 14, 2, -1, 1))
sketch10.addConstraint(Sketcher.Constraint("Symmetric", 1, 2, 4, 2, -2))
sketch10.addConstraint(Sketcher.Constraint("Symmetric", 3, 2, 6, 2, -2))
sketch10.addConstraint(Sketcher.Constraint("DistanceY", 0, 2, 0, 1, 1.0))
sketch10.addConstraint(Sketcher.Constraint("DistanceX", 1, 1, 1, 2, 12.4))
sketch10.addConstraint(Sketcher.Constraint("DistanceX", 0, 2, 4, 2, 72.0))
sketch10.addConstraint(Sketcher.Constraint("DistanceY", -1, 1, 0, 2, 29.2))
pocket7 = body.newObject("PartDesign::Pocket", "Pocket006")
pocket7.Profile = sketch10
pocket7.Length = 6.8

sketch11 = body.newObject("Sketcher::SketchObject", "Sketch010")
sketch11.AttachmentSupport = (doc.getObject("XZ_Plane"), [""])
sketch11.MapMode = "FlatFace"
sketch11.AttachmentOffset = App.Placement(V(0, 0, 32.2), App.Rotation())
sketch11.addGeometry(Part.ArcOfCircle(Part.Circle(V(5, 5.5, 0), V(0, 0, 1), 3.5), math.radians(90), math.radians(270)), False)
sketch11.addGeometry(Part.LineSegment(V(5, 2, 0), V(20, 2, 0)), False)
sketch11.addGeometry(Part.ArcOfCircle(Part.Circle(V(20, 5.5, 0), V(0, 0, 1), 3.5), math.radians(-90), math.radians(90)), False)
sketch11.addGeometry(Part.LineSegment(V(20, 9, 0), V(5, 9, 0)), False)
sketch11.addConstraint(Sketcher.Constraint("Tangent", 0, 2, 1, 1))
sketch11.addConstraint(Sketcher.Constraint("Tangent", 1, 2, 2, 1))
sketch11.addConstraint(Sketcher.Constraint("Tangent", 2, 2, 3, 1))
sketch11.addConstraint(Sketcher.Constraint("Tangent", 3, 2, 0, 1))
sketch11.addConstraint(Sketcher.Constraint("Horizontal", 1))
sketch11.addConstraint(Sketcher.Constraint("Horizontal", 3))
sketch11.addConstraint(Sketcher.Constraint("Radius", 0, 3.5))
sketch11.addConstraint(Sketcher.Constraint("DistanceX", 1, 1, 1, 2, 15.0))
sketch11.addConstraint(Sketcher.Constraint("DistanceX", -1, 1, 0, 3, 5.0))
sketch11.addConstraint(Sketcher.Constraint("DistanceY", -1, 1, 0, 2, 2.0))
pocket8 = body.newObject("PartDesign::Pocket", "Pocket007")
pocket8.Profile = sketch11
pocket8.Length = 1.4

sketch12 = body.newObject("Sketcher::SketchObject", "Sketch011")
sketch12.AttachmentSupport = (doc.getObject("YZ_Plane"), [""])
sketch12.MapMode = "FlatFace"
sketch12.AttachmentOffset = App.Placement(V(0, 0, 54), App.Rotation())
sketch12.addGeometry(Part.ArcOfCircle(Part.Circle(V(-6.8, 6, 0), V(0, 0, 1), 4), math.radians(90), math.radians(270)), False)
sketch12.addGeometry(Part.LineSegment(V(-6.8, 2, 0), V(9.2, 2, 0)), False)
sketch12.addGeometry(Part.ArcOfCircle(Part.Circle(V(9.2, 6, 0), V(0, 0, 1), 4), math.radians(-90), math.radians(90)), False)
sketch12.addGeometry(Part.LineSegment(V(9.2, 10, 0), V(-6.8, 10, 0)), False)
sketch12.addConstraint(Sketcher.Constraint("Tangent", 0, 2, 1, 1))
sketch12.addConstraint(Sketcher.Constraint("Tangent", 1, 2, 2, 1))
sketch12.addConstraint(Sketcher.Constraint("Tangent", 2, 2, 3, 1))
sketch12.addConstraint(Sketcher.Constraint("Tangent", 3, 2, 0, 1))
sketch12.addConstraint(Sketcher.Constraint("Horizontal", 1))
sketch12.addConstraint(Sketcher.Constraint("Horizontal", 3))
sketch12.addConstraint(Sketcher.Constraint("Radius", 0, 4.0))
sketch12.addConstraint(Sketcher.Constraint("DistanceX", 1, 1, 1, 2, 16.0))
sketch12.addConstraint(Sketcher.Constraint("DistanceY", -1, 1, 0, 3, 6.0))
sketch12.addConstraint(Sketcher.Constraint("DistanceX", 0, 3, -1, 1, 6.8))
pocket9 = body.newObject("PartDesign::Pocket", "Pocket008")
pocket9.Profile = sketch12
pocket9.Length = 1

sketch13 = body.newObject("Sketcher::SketchObject", "Sketch012")
sketch13.AttachmentSupport = (doc.getObject("XZ_Plane"), [""])
sketch13.MapMode = "FlatFace"
sketch13.AttachmentOffset = App.Placement(V(0, 0, -29.2), App.Rotation())
sketch13.addGeometry(Part.Circle(V(-26.5, 9, 0), V(0, 0, 1), 4.2), False)
sketch13.addGeometry(Part.Circle(V(22.5, 9, 0), V(0, 0, 1), 4.2), False)
sketch13.addConstraint(Sketcher.Constraint("Equal", 0, 1))
sketch13.addConstraint(Sketcher.Constraint("Horizontal", 0, 3, 1, 3))
sketch13.addConstraint(Sketcher.Constraint("Diameter", 0, 8.4))
sketch13.addConstraint(Sketcher.Constraint("DistanceY", -1, 1, 0, 3, 9.0))
sketch13.addConstraint(Sketcher.Constraint("DistanceX", 0, 3, 1, 3, 49.0))
sketch13.addConstraint(Sketcher.Constraint("DistanceX", 0, 3, -1, 1, 26.5))
pocket10 = body.newObject("PartDesign::Pocket", "Pocket009")
pocket10.Profile = sketch13
pocket10.Length = 1

sketch14 = body.newObject("Sketcher::SketchObject", "Sketch013")
sketch14.AttachmentSupport = (doc.getObject("YZ_Plane"), [""])
sketch14.MapMode = "FlatFace"
sketch14.AttachmentOffset = App.Placement(V(0, 0, 51), App.Rotation())
add_polygon(sketch14, [(12, 19), (12, 2), (-10, 2), (-10, 19)])
sketch14.addConstraint(Sketcher.Constraint("Vertical", 0))
sketch14.addConstraint(Sketcher.Constraint("Horizontal", 1))
sketch14.addConstraint(Sketcher.Constraint("Vertical", 2))
sketch14.addConstraint(Sketcher.Constraint("Horizontal", 3))
sketch14.addConstraint(Sketcher.Constraint("DistanceX", 1, 2, 1, 1, 22.0))
sketch14.addConstraint(Sketcher.Constraint("DistanceY", 0, 2, 0, 1, 17.0))
sketch14.addConstraint(Sketcher.Constraint("DistanceY", -1, 1, 0, 2, 2.0))
sketch14.addConstraint(Sketcher.Constraint("DistanceX", -1, 1, 0, 2, 12.2))
pocket11 = body.newObject("PartDesign::Pocket", "Pocket010")
pocket11.Profile = sketch14
pocket11.Length = 1
pocket11.Reversed = True
doc.recompute()

fillet = body.newObject("PartDesign::Fillet", "Fillet")
fillet.Base = (pocket11, edges_at(pocket11, [
    (54, 32.2, 9.5),
    (-54, 32.2, 9.5),
    (-54, -32.2, 9.5),
    (54, -32.2, 9.5),
]))
fillet.Radius = 4
doc.recompute()

fillet2 = body.newObject("PartDesign::Fillet", "Fillet001")
fillet2.Base = (fillet, edges_at(fillet, [
    (-51, 29.2, 10.5),
    (-51, -29.2, 10.5),
    (51, -29.2, 10.5),
    (51, 29.2, 10.5),
]))
fillet2.Radius = 1
doc.recompute()

chamfer = body.newObject("PartDesign::Chamfer", "Chamfer")
chamfer.Base = (fillet2, edges_at(fillet2, [
    (12.5, -32.2, 9),
    (54, 1.2, 10),
    (12.5, -30.8, 7),
    (53, -3.8, 6),
    (53, 1.2, 8),
    (5, -30.8, 5.5),
    (20, -30.8, 5.5),
    (12.5, -30.8, 4),
    (53, 6.2, 6),
    (53, 1.2, 4),
]))
chamfer.Size = 0.6
doc.recompute()

fillet3 = body.newObject("PartDesign::Fillet", "Fillet002")
fillet3.Base = (chamfer, edges_at(chamfer, [(0, -32.2, 0)]))
fillet3.Radius = 1
doc.recompute()

fillet4 = body.newObject("PartDesign::Fillet", "Fillet003")
fillet4.Base = (fillet3, edges_at(fillet3, [
    (43.75, 18.4, 2),
    (43.75, -18.4, 2),
    (-45.71, -18.4, 2),
    (-45.71, 18.4, 2),
]))
fillet4.Radius = 1

doc.recompute()
